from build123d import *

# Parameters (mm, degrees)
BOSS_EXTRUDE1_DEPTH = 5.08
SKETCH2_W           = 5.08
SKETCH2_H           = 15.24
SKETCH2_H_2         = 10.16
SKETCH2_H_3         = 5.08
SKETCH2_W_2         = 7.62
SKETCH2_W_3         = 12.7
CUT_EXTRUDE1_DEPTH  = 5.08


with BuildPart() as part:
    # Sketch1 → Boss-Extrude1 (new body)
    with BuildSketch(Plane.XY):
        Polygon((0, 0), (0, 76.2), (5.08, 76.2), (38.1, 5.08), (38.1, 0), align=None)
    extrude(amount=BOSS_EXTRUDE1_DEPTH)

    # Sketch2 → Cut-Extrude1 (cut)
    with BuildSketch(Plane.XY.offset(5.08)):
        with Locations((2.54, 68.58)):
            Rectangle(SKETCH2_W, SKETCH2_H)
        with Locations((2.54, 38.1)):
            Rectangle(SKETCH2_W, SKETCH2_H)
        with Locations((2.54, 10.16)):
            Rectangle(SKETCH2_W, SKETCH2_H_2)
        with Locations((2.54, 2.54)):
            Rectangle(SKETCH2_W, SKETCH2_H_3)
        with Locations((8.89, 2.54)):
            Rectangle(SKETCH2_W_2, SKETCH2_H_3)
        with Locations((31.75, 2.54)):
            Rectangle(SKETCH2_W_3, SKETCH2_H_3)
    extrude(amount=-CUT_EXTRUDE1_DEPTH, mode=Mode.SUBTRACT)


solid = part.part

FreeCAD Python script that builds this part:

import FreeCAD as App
import Part
import Sketcher

V = App.Vector
Q = App.Units.Quantity

doc = App.newDocument("Part")
body = doc.addObject("PartDesign::Body", "Body")

# Sketch on XY plane
sketch1 = body.newObject("Sketcher::SketchObject", "Sketch")
sketch1.AttachmentSupport = (doc.getObject("XY_Plane"), [""])
sketch1.MapMode = "FlatFace"
sketch1.addGeometry([
    Part.LineSegment(V(0, 76, 0), V(0, 0, 0)),  # 0
    Part.LineSegment(V(0, 0, 0), V(38, 0, 0)),  # 1
    Part.LineSegment(V(38, 0, 0), V(38, 5, 0)),  # 2
    Part.LineSegment(V(38, 5, 0), V(5, 76, 0)),  # 3
    Part.LineSegment(V(5, 76, 0), V(0, 76, 0)),  # 4
], False)
sketch1.addConstraint([
    Sketcher.Constraint("Coincident", 0, 2, 1, 1),
    Sketcher.Constraint("Coincident", 1, 2, 2, 1),
    Sketcher.Constraint("Coincident", 2, 2, 3, 1),
    Sketcher.Constraint("Coincident", 3, 2, 4, 1),
    Sketcher.Constraint("Coincident", 4, 2, 0, 1),
    Sketcher.Constraint("Vertical", 0),
    Sketcher.Constraint("Horizontal", 1),
    Sketcher.Constraint("Vertical", 2),
    Sketcher.Constraint("Horizontal", 4),
    Sketcher.Constraint("Coincident", 0, 2, -1, 1),
    Sketcher.Constraint("Equal", 4, 2),
    Sketcher.Constraint("DistanceY", 0, 2, 0, 1, Q("3 in")),
    Sketcher.Constraint("DistanceX", 1, 1, 1, 2, Q("1.5 in")),
    Sketcher.Constraint("DistanceX", 4, 2, 4, 1, Q("0.2 in")),
])
pad1 = body.newObject("PartDesign::Pad", "Pad")
pad1.Profile = sketch1
pad1.Length = Q("0.2 in")

# Sketch on XY plane
sketch2 = body.newObject("Sketcher::SketchObject", "Sketch001")
sketch2.AttachmentSupport = (doc.getObject("XY_Plane"), [""])
sketch2.MapMode = "FlatFace"
sketch2.AttachmentOffset = App.Placement(V(0, 0, 0.2 * 25.4), App.Rotation())
sketch2.addGeometry([
    Part.LineSegment(V(0, 76, 0), V(0, 61, 0)),  # 0
    Part.LineSegment(V(0, 61, 0), V(5, 61, 0)),  # 1
    Part.LineSegment(V(5, 61, 0), V(5, 76, 0)),  # 2
    Part.LineSegment(V(5, 76, 0), V(0, 76, 0)),  # 3
    Part.LineSegment(V(0, 46, 0), V(0, 30, 0)),  # 4
    Part.LineSegment(V(0, 30, 0), V(5, 30, 0)),  # 5
    Part.LineSegment(V(5, 30, 0), V(5, 46, 0)),  # 6
    Part.LineSegment(V(5, 46, 0), V(0, 46, 0)),  # 7
    Part.LineSegment(V(0, 15, 0), V(0, 0, 0)),  # 8
    Part.LineSegment(V(0, 0, 0), V(13, 0, 0)),  # 9
    Part.LineSegment(V(13, 0, 0), V(13, 5, 0)),  # 10
    Part.LineSegment(V(13, 5, 0), V(5, 5, 0)),  # 11
    Part.LineSegment(V(5, 5, 0), V(5, 15, 0)),  # 12
    Part.LineSegment(V(5, 15, 0), V(0, 15, 0)),  # 13
    Part.LineSegment(V(25, 5, 0), V(25, 0, 0)),  # 14
    Part.LineSegment(V(25, 0, 0), V(38, 0, 0)),  # 15
    Part.LineSegment(V(38, 0, 0), V(38, 5, 0)),  # 16
    Part.LineSegment(V(38, 5, 0), V(25, 5, 0)),  # 17
], False)
sketch2.addConstraint([
    Sketcher.Constraint("Coincident", 0, 2, 1, 1),
    Sketcher.Constraint("Coincident", 1, 2, 2, 1),
    Sketcher.Constraint("Coincident", 2, 2, 3, 1),
    Sketcher.Constraint("Coincident", 3, 2, 0, 1),
    Sketcher.Constraint("Coincident", 4, 2, 5, 1),
    Sketcher.Constraint("Coincident", 5, 2, 6, 1),
    Sketcher.Constraint("Coincident", 6, 2, 7, 1),
    Sketcher.Constraint("Coincident", 7, 2, 4, 1),
    Sketcher.Constraint("Coincident", 8, 2, 9, 1),
    Sketcher.Constraint("Coincident", 9, 2, 10, 1),
    Sketcher.Constraint("Coincident", 10, 2, 11, 1),
    Sketcher.Constraint("Coincident", 11, 2, 12, 1),
    Sketcher.Constraint("Coincident", 12, 2, 13, 1),
    Sketcher.Constraint("Coincident", 13, 2, 8, 1),
    Sketcher.Constraint("Coincident", 14, 2, 15, 1),
    Sketcher.Constraint("Coincident", 15, 2, 16, 1),
    Sketcher.Constraint("Coincident", 16, 2, 17, 1),
    Sketcher.Constraint("Coincident", 17, 2, 14, 1),
    Sketcher.Constraint("Vertical", 0),
    Sketcher.Constraint("Horizontal", 1),
    Sketcher.Constraint("Vertical", 2),
    Sketcher.Constraint("Horizontal", 3),
    Sketcher.Constraint("Vertical", 4),
    Sketcher.Constraint("Horizontal", 5),
    Sketcher.Constraint("Vertical", 6),
    Sketcher.Constraint("Horizontal", 7),
    Sketcher.Constraint("Vertical", 8),
    Sketcher.Constraint("Horizontal", 9),
    Sketcher.Constraint("Vertical", 10),
    Sketcher.Constraint("Horizontal", 11),
    Sketcher.Constraint("Vertical", 12),
    Sketcher.Constraint("Horizontal", 13),
    Sketcher.Constraint("Vertical", 14),
    Sketcher.Constraint("Horizontal", 15),
    Sketcher.Constraint("Vertical", 16),
    Sketcher.Constraint("Horizontal", 17),
    Sketcher.Constraint("Coincident", 8, 2, -1, 1),
    Sketcher.Constraint("PointOnObject", 0, 2, -2),
    Sketcher.Constraint("PointOnObject", 4, 2, -2),
    Sketcher.Constraint("PointOnObject", 14, 2, -1),
    Sketcher.Constraint("Horizontal", 11, 2, 16, 2),
    Sketcher.Constraint("Vertical", 2, 2, 5, 2),
    Sketcher.Constraint("Vertical", 6, 2, 11, 2),
    Sketcher.Constraint("Equal", 9, 15),
    Sketcher.Constraint("Equal", 2, 4),
    Sketcher.Constraint("Equal", 6, 8),
    Sketcher.Constraint("Equal", 13, 10),
    Sketcher.Constraint("DistanceX", 1, 1, 1, 2, Q("0.2 in")),
    Sketcher.Constraint("DistanceX", 9, 1, 9, 2, Q("0.5 in")),
    Sketcher.Constraint("DistanceY", 0, 2, 0, 1, Q("0.6 in")),
    Sketcher.Constraint("DistanceY", -1, 1, 2, 2, Q("3 in")),
    Sketcher.Constraint("DistanceX", -1, 1, 14, 2, Q("1 in")),
    Sketcher.Constraint("DistanceY", 10, 2, 5, 2, Q("1 in")),
])
pocket1 = body.newObject("PartDesign::Pocket", "Pocket")
pocket1.Profile = sketch2
pocket1.Length = Q("0.2 in")

doc.recompute()
